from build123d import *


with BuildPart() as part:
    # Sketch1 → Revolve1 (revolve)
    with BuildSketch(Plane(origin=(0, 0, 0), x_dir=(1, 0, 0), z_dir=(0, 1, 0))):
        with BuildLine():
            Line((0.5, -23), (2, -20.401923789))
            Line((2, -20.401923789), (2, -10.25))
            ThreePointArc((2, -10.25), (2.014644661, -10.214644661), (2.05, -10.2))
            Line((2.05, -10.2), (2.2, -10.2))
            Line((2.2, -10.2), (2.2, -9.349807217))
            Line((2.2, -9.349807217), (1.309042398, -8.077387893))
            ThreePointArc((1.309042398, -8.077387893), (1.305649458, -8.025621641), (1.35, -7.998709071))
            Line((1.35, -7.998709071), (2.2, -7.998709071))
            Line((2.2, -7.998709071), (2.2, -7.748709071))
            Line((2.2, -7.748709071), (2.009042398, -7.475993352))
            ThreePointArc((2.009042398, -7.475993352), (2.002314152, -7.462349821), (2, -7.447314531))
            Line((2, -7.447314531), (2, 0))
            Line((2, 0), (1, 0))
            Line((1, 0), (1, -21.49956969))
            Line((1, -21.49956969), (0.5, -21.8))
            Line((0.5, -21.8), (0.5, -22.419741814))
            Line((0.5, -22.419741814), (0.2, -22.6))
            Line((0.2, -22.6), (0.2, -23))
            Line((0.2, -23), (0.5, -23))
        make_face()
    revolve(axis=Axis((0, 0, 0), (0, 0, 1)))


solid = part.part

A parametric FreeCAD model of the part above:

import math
import FreeCAD as App
import Part
import Sketcher
Q = App.Units.Quantity

doc = App.newDocument("Part")
body = doc.addObject("PartDesign::Body", "Body")

# Sketch on XZ plane
sketch1 = body.newObject("Sketcher::SketchObject", "Sketch")
sketch1.AttachmentSupport = (doc.getObject("XZ_Plane"), [""])
sketch1.MapMode = "FlatFace"
sketch1.addGeometry([
    Part.LineSegment(App.Vector(0.5, 23, 0), App.Vector(2, 20.402, 0)),  # 0
    Part.LineSegment(App.Vector(2, 20.402, 0), App.Vector(2, 10.25, 0)),  # 1
    Part.ArcOfCircle(Part.Circle(App.Vector(2.05, 10.25, 0), App.Vector(0, 0, 1), 0.05), math.radians(180), math.radians(270)),  # 2
    Part.LineSegment(App.Vector(2.05, 10.2, 0), App.Vector(2.2, 10.2, 0)),  # 3
    Part.LineSegment(App.Vector(2.2, 10.2, 0), App.Vector(2.2, 9.35, 0)),  # 4
    Part.LineSegment(App.Vector(2.2, 9.35, 0), App.Vector(1.309, 8.077, 0)),  # 5
    Part.ArcOfCircle(Part.Circle(App.Vector(1.35, 8.049, 0), App.Vector(0, 0, 1), 0.05), math.radians(145), math.radians(270)),  # 6
    Part.LineSegment(App.Vector(1.35, 7.999, 0), App.Vector(2.2, 7.999, 0)),  # 7
    Part.LineSegment(App.Vector(2.2, 7.999, 0), App.Vector(2.2, 7.749, 0)),  # 8
    Part.LineSegment(App.Vector(2.2, 7.749, 0), App.Vector(2.009, 7.476, 0)),  # 9
    Part.ArcOfCircle(Part.Circle(App.Vector(2.05, 7.447, 0), App.Vector(0, 0, 1), 0.05), math.radians(145), math.radians(180)),  # 10
    Part.LineSegment(App.Vector(2, 7.447, 0), App.Vector(2, 0, 0)),  # 11
    Part.LineSegment(App.Vector(2, 0, 0), App.Vector(1, 0, 0)),  # 12
    Part.LineSegment(App.Vector(1, 0, 0), App.Vector(1, 21.5, 0)),  # 13
    Part.LineSegment(App.Vector(1, 21.5, 0), App.Vector(0.5, 21.8, 0)),  # 14
    Part.LineSegment(App.Vector(0.5, 21.8, 0), App.Vector(0.5, 22.42, 0)),  # 15
    Part.LineSegment(App.Vector(0.5, 22.42, 0), App.Vector(0.2, 22.6, 0)),  # 16
    Part.LineSegment(App.Vector(0.2, 22.6, 0), App.Vector(0.2, 23, 0)),  # 17
    Part.LineSegment(App.Vector(0.2, 23, 0), App.Vector(0.5, 23, 0)),  # 18
], False)
sketch1.addConstraint([
    Sketcher.Constraint("Coincident", 0, 2, 1, 1),
    Sketcher.Constraint("Tangent", 1, 2, 2, 1),
    Sketcher.Constraint("Tangent", 2, 2, 3, 1),
    Sketcher.Constraint("Coincident", 3, 2, 4, 1),
    Sketcher.Constraint("Coincident", 4, 2, 5, 1),
    Sketcher.Constraint("Tangent", 5, 2, 6, 1),
    Sketcher.Constraint("Tangent", 6, 2, 7, 1),
    Sketcher.Constraint("Coincident", 7, 2, 8, 1),
    Sketcher.Constraint("Coincident", 8, 2, 9, 1),
    Sketcher.Constraint("Tangent", 9, 2, 10, 1),
    Sketcher.Constraint("Tangent", 10, 2, 11, 1),
    Sketcher.Constraint("Coincident", 11, 2, 12, 1),
    Sketcher.Constraint("Coincident", 12, 2, 13, 1),
    Sketcher.Constraint("Coincident", 13, 2, 14, 1),
    Sketcher.Constraint("Coincident", 14, 2, 15, 1),
    Sketcher.Constraint("Coincident", 15, 2, 16, 1),
    Sketcher.Constraint("Coincident", 16, 2, 17, 1),
    Sketcher.Constraint("Coincident", 17, 2, 18, 1),
    Sketcher.Constraint("Coincident", 18, 2, 0, 1),
    Sketcher.Constraint("Vertical", 1),
    Sketcher.Constraint("Horizontal", 3),
    Sketcher.Constraint("Vertical", 4),
    Sketcher.Constraint("Horizontal", 7),
    Sketcher.Constraint("Vertical", 8),
    Sketcher.Constraint("Vertical", 11),
    Sketcher.Constraint("Horizontal", 12),
    Sketcher.Constraint("Vertical", 13),
    Sketcher.Constraint("Vertical", 15),
    Sketcher.Constraint("Vertical", 17),
    Sketcher.Constraint("Horizontal", 18),
    Sketcher.Constraint("Equal", 2, 6),
    Sketcher.Constraint("Equal", 6, 10),
    Sketcher.Constraint("PointOnObject", 11, 2, -1),
    Sketcher.Constraint("Parallel", 5, 9),
    Sketcher.Constraint("Parallel", 14, 16),
    Sketcher.Constraint("Vertical", 2, 3, 10, 3),
    Sketcher.Constraint("Vertical", 4, 2, 7, 2),
    Sketcher.Constraint("Vertical", 15, 2, 18, 2),
    Sketcher.Constraint("DistanceX", 12, 2, 12, 1, 1.0),
    Sketcher.Constraint("Angle", 0, Q("-60 deg")),
    Sketcher.Constraint("Angle", 5, Q("-125 deg")),
    Sketcher.Constraint("Angle", 14, Q("149 deg")),
    Sketcher.Constraint("Radius", 2, 0.05),
    Sketcher.Constraint("Distance", 0, 3.0),
    Sketcher.Constraint("DistanceX", 18, 1, 18, 2, 0.3),
    Sketcher.Constraint("DistanceY", 17, 1, 17, 2, 0.4),
    Sketcher.Constraint("DistanceX", -1, 1, 0, 2, 2.0),
    Sketcher.Constraint("DistanceY", -1, 1, 17, 2, 23.0),
    Sketcher.Constraint("DistanceX", 3, 1, 3, 2, 0.15),
    Sketcher.Constraint("DistanceX", 7, 1, 7, 2, 0.85),
    Sketcher.Constraint("DistanceY", 8, 2, 8, 1, 0.25),
    Sketcher.Constraint("DistanceY", -1, 1, 2, 2, 10.2),
    Sketcher.Constraint("DistanceY", -1, 1, 14, 2, 21.8),
    Sketcher.Constraint("DistanceY", 4, 2, 4, 1, 0.850193),
])
revolution = body.newObject("PartDesign::Revolution", "Revolution")
revolution.Profile = sketch1
revolution.ReferenceAxis = (sketch1, ["V_Axis"])
revolution.Angle = 360

doc.recompute()
